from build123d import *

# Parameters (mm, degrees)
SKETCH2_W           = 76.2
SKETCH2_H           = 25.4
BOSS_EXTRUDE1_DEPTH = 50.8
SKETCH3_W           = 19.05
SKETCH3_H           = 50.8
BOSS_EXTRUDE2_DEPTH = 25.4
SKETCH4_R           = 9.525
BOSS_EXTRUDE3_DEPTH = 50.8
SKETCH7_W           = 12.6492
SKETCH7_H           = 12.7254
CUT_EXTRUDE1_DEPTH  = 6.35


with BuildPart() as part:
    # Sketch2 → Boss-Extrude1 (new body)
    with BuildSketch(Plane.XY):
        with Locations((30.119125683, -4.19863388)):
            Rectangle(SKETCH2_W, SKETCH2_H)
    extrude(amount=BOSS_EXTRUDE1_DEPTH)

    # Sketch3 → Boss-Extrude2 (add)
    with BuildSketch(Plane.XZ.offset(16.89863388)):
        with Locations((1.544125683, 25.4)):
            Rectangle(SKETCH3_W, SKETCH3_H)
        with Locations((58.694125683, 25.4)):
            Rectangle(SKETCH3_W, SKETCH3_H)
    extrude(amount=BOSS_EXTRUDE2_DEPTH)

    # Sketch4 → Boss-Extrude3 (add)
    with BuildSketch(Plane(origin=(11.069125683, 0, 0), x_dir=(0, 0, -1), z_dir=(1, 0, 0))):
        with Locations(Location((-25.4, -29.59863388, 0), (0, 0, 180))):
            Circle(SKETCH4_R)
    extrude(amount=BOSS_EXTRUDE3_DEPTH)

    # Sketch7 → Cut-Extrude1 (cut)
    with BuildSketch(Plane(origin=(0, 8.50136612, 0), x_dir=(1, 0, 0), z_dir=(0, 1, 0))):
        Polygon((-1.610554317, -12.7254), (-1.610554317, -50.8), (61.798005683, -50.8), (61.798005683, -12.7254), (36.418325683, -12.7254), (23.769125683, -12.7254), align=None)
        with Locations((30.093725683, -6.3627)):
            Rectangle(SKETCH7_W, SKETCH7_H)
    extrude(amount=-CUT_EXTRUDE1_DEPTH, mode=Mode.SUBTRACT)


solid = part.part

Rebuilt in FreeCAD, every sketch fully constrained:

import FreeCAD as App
import Part
import Sketcher

V = App.Vector
Q = App.Units.Quantity

doc = App.newDocument("Part")
body = doc.addObject("PartDesign::Body", "Body")

# Sketch on XY plane
sketch1 = body.newObject("Sketcher::SketchObject", "Sketch")
sketch1.AttachmentSupport = (doc.getObject("XY_Plane"), [""])
sketch1.MapMode = "FlatFace"
sketch1.addGeometry(Part.LineSegment(V(-7.980874, 8.501366, 0), V(-7.980874, -16.898634, 0)), False)
sketch1.addGeometry(Part.LineSegment(V(-7.980874, -16.898634, 0), V(68.219126, -16.898634, 0)), False)
sketch1.addGeometry(Part.LineSegment(V(68.219126, -16.898634, 0), V(68.219126, 8.501366, 0)), False)
sketch1.addGeometry(Part.LineSegment(V(68.219126, 8.501366, 0), V(-7.980874, 8.501366, 0)), False)
sketch1.addConstraint(Sketcher.Constraint("Coincident", 0, 2, 1, 1))
sketch1.addConstraint(Sketcher.Constraint("Coincident", 1, 2, 2, 1))
sketch1.addConstraint(Sketcher.Constraint("Coincident", 2, 2, 3, 1))
sketch1.addConstraint(Sketcher.Constraint("Coincident", 3, 2, 0, 1))
sketch1.addConstraint(Sketcher.Constraint("Vertical", 0))
sketch1.addConstraint(Sketcher.Constraint("Horizontal", 1))
sketch1.addConstraint(Sketcher.Constraint("Vertical", 2))
sketch1.addConstraint(Sketcher.Constraint("Horizontal", 3))
sketch1.addConstraint(Sketcher.Constraint("DistanceX", 1, 1, 1, 2, Q("3 in")))
sketch1.addConstraint(Sketcher.Constraint("DistanceY", 0, 2, 0, 1, Q("1 in")))
sketch1.addConstraint(Sketcher.Constraint("DistanceX", 0, 2, -1, 1, 7.980874))
sketch1.addConstraint(Sketcher.Constraint("DistanceY", 0, 2, -1, 1, 16.898634))
pad1 = body.newObject("PartDesign::Pad", "Pad")
pad1.Profile = sketch1
pad1.Length = Q("2 in")

# Sketch on XZ plane
sketch2 = body.newObject("Sketcher::SketchObject", "Sketch001")
sketch2.AttachmentSupport = (doc.getObject("XZ_Plane"), [""])
sketch2.MapMode = "FlatFace"
sketch2.AttachmentOffset = App.Placement(V(0, 0, 16.898634), App.Rotation())
sketch2.addGeometry(Part.LineSegment(V(-7.980874, 50.8, 0), V(-7.980874, 0, 0)), False)
sketch2.addGeometry(Part.LineSegment(V(-7.980874, 0, 0), V(11.069126, 0, 0)), False)
sketch2.addGeometry(Part.LineSegment(V(11.069126, 0, 0), V(11.069126, 50.8, 0)), False)
sketch2.addGeometry(Part.LineSegment(V(11.069126, 50.8, 0), V(-7.980874, 50.8, 0)), False)
sketch2.addGeometry(Part.LineSegment(V(49.169126, 50.8, 0), V(49.169126, 0, 0)), False)
sketch2.addGeometry(Part.LineSegment(V(49.169126, 0, 0), V(68.219126, 0, 0)), False)
sketch2.addGeometry(Part.LineSegment(V(68.219126, 0, 0), V(68.219126, 50.8, 0)), False)
sketch2.addGeometry(Part.LineSegment(V(68.219126, 50.8, 0), V(49.169126, 50.8, 0)), False)
sketch2.addConstraint(Sketcher.Constraint("Coincident", 0, 2, 1, 1))
sketch2.addConstraint(Sketcher.Constraint("Coincident", 1, 2, 2, 1))
sketch2.addConstraint(Sketcher.Constraint("Coincident", 2, 2, 3, 1))
sketch2.addConstraint(Sketcher.Constraint("Coincident", 3, 2, 0, 1))
sketch2.addConstraint(Sketcher.Constraint("Coincident", 4, 2, 5, 1))
sketch2.addConstraint(Sketcher.Constraint("Coincident", 5, 2, 6, 1))
sketch2.addConstraint(Sketcher.Constraint("Coincident", 6, 2, 7, 1))
sketch2.addConstraint(Sketcher.Constraint("Coincident", 7, 2, 4, 1))
sketch2.addConstraint(Sketcher.Constraint("Vertical", 0))
sketch2.addConstraint(Sketcher.Constraint("Horizontal", 1))
sketch2.addConstraint(Sketcher.Constraint("Vertical", 2))
sketch2.addConstraint(Sketcher.Constraint("Horizontal", 3))
sketch2.addConstraint(Sketcher.Constraint("Vertical", 4))
sketch2.addConstraint(Sketcher.Constraint("Horizontal", 5))
sketch2.addConstraint(Sketcher.Constraint("Vertical", 6))
sketch2.addConstraint(Sketcher.Constraint("Horizontal", 7))
sketch2.addConstraint(Sketcher.Constraint("PointOnObject", 0, 2, -1))
sketch2.addConstraint(Sketcher.Constraint("PointOnObject", 4, 2, -1))
sketch2.addConstraint(Sketcher.Constraint("Horizontal", 3, 2, 6, 2))
sketch2.addConstraint(Sketcher.Constraint("Equal", 3, 5))
sketch2.addConstraint(Sketcher.Constraint("DistanceY", 0, 2, 0, 1, Q("2 in")))
sketch2.addConstraint(Sketcher.Constraint("DistanceX", 0, 2, 5, 2, Q("3 in")))
sketch2.addConstraint(Sketcher.Constraint("DistanceX", 1, 1, 1, 2, Q("0.75 in")))
sketch2.addConstraint(Sketcher.Constraint("DistanceX", 0, 2, -1, 1, 7.980874))
pad2 = body.newObject("PartDesign::Pad", "Pad001")
pad2.Profile = sketch2
pad2.Length = Q("1 in")

# Sketch on YZ plane
sketch3 = body.newObject("Sketcher::SketchObject", "Sketch002")
sketch3.AttachmentSupport = (doc.getObject("YZ_Plane"), [""])
sketch3.MapMode = "FlatFace"
sketch3.AttachmentOffset = App.Placement(V(0, 0, 11.069126), App.Rotation())
sketch3.addGeometry(Part.Circle(V(-29.598634, 25.4, 0), V(0, 0, 1), 9.525), False)
sketch3.addConstraint(Sketcher.Constraint("Diameter", 0, Q("0.75 in")))
sketch3.addConstraint(Sketcher.Constraint("DistanceY", -1, 1, 0, 3, Q("1 in")))
sketch3.addConstraint(Sketcher.Constraint("DistanceX", 0, 3, -1, 1, 29.598634))
pad3 = body.newObject("PartDesign::Pad", "Pad002")
pad3.Profile = sketch3
pad3.Length = Q("2 in")

# Sketch on XZ plane
sketch4 = body.newObject("Sketcher::SketchObject", "Sketch003")
sketch4.AttachmentSupport = (doc.getObject("XZ_Plane"), [""])
sketch4.MapMode = "FlatFace"
sketch4.AttachmentOffset = App.Placement(V(0, 0, -8.501366), App.Rotation())
sketch4.addGeometry(Part.LineSegment(V(-1.610554, 12.7254, 0), V(-1.610554, 50.8, 0)), False)
sketch4.addGeometry(Part.LineSegment(V(-1.610554, 50.8, 0), V(61.798006, 50.8, 0)), False)
sketch4.addGeometry(Part.LineSegment(V(61.798006, 50.8, 0), V(61.798006, 12.7254, 0)), False)
sketch4.addGeometry(Part.LineSegment(V(61.798006, 12.7254, 0), V(36.418326, 12.7254, 0)), False)
sketch4.addGeometry(Part.LineSegment(V(36.418326, 12.7254, 0), V(36.418326, 0, 0)), False)
sketch4.addGeometry(Part.LineSegment(V(36.418326, 0, 0), V(23.769126, 0, 0)), False)
sketch4.addGeometry(Part.LineSegment(V(23.769126, 0, 0), V(23.769126, 12.7254, 0)), False)
sketch4.addGeometry(Part.LineSegment(V(23.769126, 12.7254, 0), V(-1.610554, 12.7254, 0)), False)
sketch4.addConstraint(Sketcher.Constraint("Coincident", 0, 2, 1, 1))
sketch4.addConstraint(Sketcher.Constraint("Coincident", 1, 2, 2, 1))
sketch4.addConstraint(Sketcher.Constraint("Coincident", 2, 2, 3, 1))
sketch4.addConstraint(Sketcher.Constraint("Coincident", 3, 2, 4, 1))
sketch4.addConstraint(Sketcher.Constraint("Coincident", 4, 2, 5, 1))
sketch4.addConstraint(Sketcher.Constraint("Coincident", 5, 2, 6, 1))
sketch4.addConstraint(Sketcher.Constraint("Coincident", 6, 2, 7, 1))
sketch4.addConstraint(Sketcher.Constraint("Coincident", 7, 2, 0, 1))
sketch4.addConstraint(Sketcher.Constraint("Vertical", 0))
sketch4.addConstraint(Sketcher.Constraint("Horizontal", 1))
sketch4.addConstraint(Sketcher.Constraint("Vertical", 2))
sketch4.addConstraint(Sketcher.Constraint("Horizontal", 3))
sketch4.addConstraint(Sketcher.Constraint("Vertical", 4))
sketch4.addConstraint(Sketcher.Constraint("Horizontal", 5))
sketch4.addConstraint(Sketcher.Constraint("Vertical", 6))
sketch4.addConstraint(Sketcher.Constraint("Horizontal", 7))
sketch4.addConstraint(Sketcher.Constraint("PointOnObject", 4, 2, -1))
sketch4.addConstraint(Sketcher.Constraint("Horizontal", 3, 2, 6, 2))
sketch4.addConstraint(Sketcher.Constraint("Equal", 3, 7))
sketch4.addConstraint(Sketcher.Constraint("DistanceY", -1, 1, 0, 2, Q("2 in")))
sketch4.addConstraint(Sketcher.Constraint("DistanceX", 5, 2, 5, 1, Q("0.498 in")))
sketch4.addConstraint(Sketcher.Constraint("DistanceY", 0, 1, 0, 2, Q("1.499 in")))
sketch4.addConstraint(Sketcher.Constraint("DistanceX", 1, 1, 1, 2, Q("2.4964 in")))
sketch4.addConstraint(Sketcher.Constraint("DistanceX", 0, 2, -1, 1, 1.610554))
pocket1 = body.newObject("PartDesign::Pocket", "Pocket")
pocket1.Profile = sketch4
pocket1.Length = Q("0.25 in")
pocket1.Reversed = True

doc.recompute()
